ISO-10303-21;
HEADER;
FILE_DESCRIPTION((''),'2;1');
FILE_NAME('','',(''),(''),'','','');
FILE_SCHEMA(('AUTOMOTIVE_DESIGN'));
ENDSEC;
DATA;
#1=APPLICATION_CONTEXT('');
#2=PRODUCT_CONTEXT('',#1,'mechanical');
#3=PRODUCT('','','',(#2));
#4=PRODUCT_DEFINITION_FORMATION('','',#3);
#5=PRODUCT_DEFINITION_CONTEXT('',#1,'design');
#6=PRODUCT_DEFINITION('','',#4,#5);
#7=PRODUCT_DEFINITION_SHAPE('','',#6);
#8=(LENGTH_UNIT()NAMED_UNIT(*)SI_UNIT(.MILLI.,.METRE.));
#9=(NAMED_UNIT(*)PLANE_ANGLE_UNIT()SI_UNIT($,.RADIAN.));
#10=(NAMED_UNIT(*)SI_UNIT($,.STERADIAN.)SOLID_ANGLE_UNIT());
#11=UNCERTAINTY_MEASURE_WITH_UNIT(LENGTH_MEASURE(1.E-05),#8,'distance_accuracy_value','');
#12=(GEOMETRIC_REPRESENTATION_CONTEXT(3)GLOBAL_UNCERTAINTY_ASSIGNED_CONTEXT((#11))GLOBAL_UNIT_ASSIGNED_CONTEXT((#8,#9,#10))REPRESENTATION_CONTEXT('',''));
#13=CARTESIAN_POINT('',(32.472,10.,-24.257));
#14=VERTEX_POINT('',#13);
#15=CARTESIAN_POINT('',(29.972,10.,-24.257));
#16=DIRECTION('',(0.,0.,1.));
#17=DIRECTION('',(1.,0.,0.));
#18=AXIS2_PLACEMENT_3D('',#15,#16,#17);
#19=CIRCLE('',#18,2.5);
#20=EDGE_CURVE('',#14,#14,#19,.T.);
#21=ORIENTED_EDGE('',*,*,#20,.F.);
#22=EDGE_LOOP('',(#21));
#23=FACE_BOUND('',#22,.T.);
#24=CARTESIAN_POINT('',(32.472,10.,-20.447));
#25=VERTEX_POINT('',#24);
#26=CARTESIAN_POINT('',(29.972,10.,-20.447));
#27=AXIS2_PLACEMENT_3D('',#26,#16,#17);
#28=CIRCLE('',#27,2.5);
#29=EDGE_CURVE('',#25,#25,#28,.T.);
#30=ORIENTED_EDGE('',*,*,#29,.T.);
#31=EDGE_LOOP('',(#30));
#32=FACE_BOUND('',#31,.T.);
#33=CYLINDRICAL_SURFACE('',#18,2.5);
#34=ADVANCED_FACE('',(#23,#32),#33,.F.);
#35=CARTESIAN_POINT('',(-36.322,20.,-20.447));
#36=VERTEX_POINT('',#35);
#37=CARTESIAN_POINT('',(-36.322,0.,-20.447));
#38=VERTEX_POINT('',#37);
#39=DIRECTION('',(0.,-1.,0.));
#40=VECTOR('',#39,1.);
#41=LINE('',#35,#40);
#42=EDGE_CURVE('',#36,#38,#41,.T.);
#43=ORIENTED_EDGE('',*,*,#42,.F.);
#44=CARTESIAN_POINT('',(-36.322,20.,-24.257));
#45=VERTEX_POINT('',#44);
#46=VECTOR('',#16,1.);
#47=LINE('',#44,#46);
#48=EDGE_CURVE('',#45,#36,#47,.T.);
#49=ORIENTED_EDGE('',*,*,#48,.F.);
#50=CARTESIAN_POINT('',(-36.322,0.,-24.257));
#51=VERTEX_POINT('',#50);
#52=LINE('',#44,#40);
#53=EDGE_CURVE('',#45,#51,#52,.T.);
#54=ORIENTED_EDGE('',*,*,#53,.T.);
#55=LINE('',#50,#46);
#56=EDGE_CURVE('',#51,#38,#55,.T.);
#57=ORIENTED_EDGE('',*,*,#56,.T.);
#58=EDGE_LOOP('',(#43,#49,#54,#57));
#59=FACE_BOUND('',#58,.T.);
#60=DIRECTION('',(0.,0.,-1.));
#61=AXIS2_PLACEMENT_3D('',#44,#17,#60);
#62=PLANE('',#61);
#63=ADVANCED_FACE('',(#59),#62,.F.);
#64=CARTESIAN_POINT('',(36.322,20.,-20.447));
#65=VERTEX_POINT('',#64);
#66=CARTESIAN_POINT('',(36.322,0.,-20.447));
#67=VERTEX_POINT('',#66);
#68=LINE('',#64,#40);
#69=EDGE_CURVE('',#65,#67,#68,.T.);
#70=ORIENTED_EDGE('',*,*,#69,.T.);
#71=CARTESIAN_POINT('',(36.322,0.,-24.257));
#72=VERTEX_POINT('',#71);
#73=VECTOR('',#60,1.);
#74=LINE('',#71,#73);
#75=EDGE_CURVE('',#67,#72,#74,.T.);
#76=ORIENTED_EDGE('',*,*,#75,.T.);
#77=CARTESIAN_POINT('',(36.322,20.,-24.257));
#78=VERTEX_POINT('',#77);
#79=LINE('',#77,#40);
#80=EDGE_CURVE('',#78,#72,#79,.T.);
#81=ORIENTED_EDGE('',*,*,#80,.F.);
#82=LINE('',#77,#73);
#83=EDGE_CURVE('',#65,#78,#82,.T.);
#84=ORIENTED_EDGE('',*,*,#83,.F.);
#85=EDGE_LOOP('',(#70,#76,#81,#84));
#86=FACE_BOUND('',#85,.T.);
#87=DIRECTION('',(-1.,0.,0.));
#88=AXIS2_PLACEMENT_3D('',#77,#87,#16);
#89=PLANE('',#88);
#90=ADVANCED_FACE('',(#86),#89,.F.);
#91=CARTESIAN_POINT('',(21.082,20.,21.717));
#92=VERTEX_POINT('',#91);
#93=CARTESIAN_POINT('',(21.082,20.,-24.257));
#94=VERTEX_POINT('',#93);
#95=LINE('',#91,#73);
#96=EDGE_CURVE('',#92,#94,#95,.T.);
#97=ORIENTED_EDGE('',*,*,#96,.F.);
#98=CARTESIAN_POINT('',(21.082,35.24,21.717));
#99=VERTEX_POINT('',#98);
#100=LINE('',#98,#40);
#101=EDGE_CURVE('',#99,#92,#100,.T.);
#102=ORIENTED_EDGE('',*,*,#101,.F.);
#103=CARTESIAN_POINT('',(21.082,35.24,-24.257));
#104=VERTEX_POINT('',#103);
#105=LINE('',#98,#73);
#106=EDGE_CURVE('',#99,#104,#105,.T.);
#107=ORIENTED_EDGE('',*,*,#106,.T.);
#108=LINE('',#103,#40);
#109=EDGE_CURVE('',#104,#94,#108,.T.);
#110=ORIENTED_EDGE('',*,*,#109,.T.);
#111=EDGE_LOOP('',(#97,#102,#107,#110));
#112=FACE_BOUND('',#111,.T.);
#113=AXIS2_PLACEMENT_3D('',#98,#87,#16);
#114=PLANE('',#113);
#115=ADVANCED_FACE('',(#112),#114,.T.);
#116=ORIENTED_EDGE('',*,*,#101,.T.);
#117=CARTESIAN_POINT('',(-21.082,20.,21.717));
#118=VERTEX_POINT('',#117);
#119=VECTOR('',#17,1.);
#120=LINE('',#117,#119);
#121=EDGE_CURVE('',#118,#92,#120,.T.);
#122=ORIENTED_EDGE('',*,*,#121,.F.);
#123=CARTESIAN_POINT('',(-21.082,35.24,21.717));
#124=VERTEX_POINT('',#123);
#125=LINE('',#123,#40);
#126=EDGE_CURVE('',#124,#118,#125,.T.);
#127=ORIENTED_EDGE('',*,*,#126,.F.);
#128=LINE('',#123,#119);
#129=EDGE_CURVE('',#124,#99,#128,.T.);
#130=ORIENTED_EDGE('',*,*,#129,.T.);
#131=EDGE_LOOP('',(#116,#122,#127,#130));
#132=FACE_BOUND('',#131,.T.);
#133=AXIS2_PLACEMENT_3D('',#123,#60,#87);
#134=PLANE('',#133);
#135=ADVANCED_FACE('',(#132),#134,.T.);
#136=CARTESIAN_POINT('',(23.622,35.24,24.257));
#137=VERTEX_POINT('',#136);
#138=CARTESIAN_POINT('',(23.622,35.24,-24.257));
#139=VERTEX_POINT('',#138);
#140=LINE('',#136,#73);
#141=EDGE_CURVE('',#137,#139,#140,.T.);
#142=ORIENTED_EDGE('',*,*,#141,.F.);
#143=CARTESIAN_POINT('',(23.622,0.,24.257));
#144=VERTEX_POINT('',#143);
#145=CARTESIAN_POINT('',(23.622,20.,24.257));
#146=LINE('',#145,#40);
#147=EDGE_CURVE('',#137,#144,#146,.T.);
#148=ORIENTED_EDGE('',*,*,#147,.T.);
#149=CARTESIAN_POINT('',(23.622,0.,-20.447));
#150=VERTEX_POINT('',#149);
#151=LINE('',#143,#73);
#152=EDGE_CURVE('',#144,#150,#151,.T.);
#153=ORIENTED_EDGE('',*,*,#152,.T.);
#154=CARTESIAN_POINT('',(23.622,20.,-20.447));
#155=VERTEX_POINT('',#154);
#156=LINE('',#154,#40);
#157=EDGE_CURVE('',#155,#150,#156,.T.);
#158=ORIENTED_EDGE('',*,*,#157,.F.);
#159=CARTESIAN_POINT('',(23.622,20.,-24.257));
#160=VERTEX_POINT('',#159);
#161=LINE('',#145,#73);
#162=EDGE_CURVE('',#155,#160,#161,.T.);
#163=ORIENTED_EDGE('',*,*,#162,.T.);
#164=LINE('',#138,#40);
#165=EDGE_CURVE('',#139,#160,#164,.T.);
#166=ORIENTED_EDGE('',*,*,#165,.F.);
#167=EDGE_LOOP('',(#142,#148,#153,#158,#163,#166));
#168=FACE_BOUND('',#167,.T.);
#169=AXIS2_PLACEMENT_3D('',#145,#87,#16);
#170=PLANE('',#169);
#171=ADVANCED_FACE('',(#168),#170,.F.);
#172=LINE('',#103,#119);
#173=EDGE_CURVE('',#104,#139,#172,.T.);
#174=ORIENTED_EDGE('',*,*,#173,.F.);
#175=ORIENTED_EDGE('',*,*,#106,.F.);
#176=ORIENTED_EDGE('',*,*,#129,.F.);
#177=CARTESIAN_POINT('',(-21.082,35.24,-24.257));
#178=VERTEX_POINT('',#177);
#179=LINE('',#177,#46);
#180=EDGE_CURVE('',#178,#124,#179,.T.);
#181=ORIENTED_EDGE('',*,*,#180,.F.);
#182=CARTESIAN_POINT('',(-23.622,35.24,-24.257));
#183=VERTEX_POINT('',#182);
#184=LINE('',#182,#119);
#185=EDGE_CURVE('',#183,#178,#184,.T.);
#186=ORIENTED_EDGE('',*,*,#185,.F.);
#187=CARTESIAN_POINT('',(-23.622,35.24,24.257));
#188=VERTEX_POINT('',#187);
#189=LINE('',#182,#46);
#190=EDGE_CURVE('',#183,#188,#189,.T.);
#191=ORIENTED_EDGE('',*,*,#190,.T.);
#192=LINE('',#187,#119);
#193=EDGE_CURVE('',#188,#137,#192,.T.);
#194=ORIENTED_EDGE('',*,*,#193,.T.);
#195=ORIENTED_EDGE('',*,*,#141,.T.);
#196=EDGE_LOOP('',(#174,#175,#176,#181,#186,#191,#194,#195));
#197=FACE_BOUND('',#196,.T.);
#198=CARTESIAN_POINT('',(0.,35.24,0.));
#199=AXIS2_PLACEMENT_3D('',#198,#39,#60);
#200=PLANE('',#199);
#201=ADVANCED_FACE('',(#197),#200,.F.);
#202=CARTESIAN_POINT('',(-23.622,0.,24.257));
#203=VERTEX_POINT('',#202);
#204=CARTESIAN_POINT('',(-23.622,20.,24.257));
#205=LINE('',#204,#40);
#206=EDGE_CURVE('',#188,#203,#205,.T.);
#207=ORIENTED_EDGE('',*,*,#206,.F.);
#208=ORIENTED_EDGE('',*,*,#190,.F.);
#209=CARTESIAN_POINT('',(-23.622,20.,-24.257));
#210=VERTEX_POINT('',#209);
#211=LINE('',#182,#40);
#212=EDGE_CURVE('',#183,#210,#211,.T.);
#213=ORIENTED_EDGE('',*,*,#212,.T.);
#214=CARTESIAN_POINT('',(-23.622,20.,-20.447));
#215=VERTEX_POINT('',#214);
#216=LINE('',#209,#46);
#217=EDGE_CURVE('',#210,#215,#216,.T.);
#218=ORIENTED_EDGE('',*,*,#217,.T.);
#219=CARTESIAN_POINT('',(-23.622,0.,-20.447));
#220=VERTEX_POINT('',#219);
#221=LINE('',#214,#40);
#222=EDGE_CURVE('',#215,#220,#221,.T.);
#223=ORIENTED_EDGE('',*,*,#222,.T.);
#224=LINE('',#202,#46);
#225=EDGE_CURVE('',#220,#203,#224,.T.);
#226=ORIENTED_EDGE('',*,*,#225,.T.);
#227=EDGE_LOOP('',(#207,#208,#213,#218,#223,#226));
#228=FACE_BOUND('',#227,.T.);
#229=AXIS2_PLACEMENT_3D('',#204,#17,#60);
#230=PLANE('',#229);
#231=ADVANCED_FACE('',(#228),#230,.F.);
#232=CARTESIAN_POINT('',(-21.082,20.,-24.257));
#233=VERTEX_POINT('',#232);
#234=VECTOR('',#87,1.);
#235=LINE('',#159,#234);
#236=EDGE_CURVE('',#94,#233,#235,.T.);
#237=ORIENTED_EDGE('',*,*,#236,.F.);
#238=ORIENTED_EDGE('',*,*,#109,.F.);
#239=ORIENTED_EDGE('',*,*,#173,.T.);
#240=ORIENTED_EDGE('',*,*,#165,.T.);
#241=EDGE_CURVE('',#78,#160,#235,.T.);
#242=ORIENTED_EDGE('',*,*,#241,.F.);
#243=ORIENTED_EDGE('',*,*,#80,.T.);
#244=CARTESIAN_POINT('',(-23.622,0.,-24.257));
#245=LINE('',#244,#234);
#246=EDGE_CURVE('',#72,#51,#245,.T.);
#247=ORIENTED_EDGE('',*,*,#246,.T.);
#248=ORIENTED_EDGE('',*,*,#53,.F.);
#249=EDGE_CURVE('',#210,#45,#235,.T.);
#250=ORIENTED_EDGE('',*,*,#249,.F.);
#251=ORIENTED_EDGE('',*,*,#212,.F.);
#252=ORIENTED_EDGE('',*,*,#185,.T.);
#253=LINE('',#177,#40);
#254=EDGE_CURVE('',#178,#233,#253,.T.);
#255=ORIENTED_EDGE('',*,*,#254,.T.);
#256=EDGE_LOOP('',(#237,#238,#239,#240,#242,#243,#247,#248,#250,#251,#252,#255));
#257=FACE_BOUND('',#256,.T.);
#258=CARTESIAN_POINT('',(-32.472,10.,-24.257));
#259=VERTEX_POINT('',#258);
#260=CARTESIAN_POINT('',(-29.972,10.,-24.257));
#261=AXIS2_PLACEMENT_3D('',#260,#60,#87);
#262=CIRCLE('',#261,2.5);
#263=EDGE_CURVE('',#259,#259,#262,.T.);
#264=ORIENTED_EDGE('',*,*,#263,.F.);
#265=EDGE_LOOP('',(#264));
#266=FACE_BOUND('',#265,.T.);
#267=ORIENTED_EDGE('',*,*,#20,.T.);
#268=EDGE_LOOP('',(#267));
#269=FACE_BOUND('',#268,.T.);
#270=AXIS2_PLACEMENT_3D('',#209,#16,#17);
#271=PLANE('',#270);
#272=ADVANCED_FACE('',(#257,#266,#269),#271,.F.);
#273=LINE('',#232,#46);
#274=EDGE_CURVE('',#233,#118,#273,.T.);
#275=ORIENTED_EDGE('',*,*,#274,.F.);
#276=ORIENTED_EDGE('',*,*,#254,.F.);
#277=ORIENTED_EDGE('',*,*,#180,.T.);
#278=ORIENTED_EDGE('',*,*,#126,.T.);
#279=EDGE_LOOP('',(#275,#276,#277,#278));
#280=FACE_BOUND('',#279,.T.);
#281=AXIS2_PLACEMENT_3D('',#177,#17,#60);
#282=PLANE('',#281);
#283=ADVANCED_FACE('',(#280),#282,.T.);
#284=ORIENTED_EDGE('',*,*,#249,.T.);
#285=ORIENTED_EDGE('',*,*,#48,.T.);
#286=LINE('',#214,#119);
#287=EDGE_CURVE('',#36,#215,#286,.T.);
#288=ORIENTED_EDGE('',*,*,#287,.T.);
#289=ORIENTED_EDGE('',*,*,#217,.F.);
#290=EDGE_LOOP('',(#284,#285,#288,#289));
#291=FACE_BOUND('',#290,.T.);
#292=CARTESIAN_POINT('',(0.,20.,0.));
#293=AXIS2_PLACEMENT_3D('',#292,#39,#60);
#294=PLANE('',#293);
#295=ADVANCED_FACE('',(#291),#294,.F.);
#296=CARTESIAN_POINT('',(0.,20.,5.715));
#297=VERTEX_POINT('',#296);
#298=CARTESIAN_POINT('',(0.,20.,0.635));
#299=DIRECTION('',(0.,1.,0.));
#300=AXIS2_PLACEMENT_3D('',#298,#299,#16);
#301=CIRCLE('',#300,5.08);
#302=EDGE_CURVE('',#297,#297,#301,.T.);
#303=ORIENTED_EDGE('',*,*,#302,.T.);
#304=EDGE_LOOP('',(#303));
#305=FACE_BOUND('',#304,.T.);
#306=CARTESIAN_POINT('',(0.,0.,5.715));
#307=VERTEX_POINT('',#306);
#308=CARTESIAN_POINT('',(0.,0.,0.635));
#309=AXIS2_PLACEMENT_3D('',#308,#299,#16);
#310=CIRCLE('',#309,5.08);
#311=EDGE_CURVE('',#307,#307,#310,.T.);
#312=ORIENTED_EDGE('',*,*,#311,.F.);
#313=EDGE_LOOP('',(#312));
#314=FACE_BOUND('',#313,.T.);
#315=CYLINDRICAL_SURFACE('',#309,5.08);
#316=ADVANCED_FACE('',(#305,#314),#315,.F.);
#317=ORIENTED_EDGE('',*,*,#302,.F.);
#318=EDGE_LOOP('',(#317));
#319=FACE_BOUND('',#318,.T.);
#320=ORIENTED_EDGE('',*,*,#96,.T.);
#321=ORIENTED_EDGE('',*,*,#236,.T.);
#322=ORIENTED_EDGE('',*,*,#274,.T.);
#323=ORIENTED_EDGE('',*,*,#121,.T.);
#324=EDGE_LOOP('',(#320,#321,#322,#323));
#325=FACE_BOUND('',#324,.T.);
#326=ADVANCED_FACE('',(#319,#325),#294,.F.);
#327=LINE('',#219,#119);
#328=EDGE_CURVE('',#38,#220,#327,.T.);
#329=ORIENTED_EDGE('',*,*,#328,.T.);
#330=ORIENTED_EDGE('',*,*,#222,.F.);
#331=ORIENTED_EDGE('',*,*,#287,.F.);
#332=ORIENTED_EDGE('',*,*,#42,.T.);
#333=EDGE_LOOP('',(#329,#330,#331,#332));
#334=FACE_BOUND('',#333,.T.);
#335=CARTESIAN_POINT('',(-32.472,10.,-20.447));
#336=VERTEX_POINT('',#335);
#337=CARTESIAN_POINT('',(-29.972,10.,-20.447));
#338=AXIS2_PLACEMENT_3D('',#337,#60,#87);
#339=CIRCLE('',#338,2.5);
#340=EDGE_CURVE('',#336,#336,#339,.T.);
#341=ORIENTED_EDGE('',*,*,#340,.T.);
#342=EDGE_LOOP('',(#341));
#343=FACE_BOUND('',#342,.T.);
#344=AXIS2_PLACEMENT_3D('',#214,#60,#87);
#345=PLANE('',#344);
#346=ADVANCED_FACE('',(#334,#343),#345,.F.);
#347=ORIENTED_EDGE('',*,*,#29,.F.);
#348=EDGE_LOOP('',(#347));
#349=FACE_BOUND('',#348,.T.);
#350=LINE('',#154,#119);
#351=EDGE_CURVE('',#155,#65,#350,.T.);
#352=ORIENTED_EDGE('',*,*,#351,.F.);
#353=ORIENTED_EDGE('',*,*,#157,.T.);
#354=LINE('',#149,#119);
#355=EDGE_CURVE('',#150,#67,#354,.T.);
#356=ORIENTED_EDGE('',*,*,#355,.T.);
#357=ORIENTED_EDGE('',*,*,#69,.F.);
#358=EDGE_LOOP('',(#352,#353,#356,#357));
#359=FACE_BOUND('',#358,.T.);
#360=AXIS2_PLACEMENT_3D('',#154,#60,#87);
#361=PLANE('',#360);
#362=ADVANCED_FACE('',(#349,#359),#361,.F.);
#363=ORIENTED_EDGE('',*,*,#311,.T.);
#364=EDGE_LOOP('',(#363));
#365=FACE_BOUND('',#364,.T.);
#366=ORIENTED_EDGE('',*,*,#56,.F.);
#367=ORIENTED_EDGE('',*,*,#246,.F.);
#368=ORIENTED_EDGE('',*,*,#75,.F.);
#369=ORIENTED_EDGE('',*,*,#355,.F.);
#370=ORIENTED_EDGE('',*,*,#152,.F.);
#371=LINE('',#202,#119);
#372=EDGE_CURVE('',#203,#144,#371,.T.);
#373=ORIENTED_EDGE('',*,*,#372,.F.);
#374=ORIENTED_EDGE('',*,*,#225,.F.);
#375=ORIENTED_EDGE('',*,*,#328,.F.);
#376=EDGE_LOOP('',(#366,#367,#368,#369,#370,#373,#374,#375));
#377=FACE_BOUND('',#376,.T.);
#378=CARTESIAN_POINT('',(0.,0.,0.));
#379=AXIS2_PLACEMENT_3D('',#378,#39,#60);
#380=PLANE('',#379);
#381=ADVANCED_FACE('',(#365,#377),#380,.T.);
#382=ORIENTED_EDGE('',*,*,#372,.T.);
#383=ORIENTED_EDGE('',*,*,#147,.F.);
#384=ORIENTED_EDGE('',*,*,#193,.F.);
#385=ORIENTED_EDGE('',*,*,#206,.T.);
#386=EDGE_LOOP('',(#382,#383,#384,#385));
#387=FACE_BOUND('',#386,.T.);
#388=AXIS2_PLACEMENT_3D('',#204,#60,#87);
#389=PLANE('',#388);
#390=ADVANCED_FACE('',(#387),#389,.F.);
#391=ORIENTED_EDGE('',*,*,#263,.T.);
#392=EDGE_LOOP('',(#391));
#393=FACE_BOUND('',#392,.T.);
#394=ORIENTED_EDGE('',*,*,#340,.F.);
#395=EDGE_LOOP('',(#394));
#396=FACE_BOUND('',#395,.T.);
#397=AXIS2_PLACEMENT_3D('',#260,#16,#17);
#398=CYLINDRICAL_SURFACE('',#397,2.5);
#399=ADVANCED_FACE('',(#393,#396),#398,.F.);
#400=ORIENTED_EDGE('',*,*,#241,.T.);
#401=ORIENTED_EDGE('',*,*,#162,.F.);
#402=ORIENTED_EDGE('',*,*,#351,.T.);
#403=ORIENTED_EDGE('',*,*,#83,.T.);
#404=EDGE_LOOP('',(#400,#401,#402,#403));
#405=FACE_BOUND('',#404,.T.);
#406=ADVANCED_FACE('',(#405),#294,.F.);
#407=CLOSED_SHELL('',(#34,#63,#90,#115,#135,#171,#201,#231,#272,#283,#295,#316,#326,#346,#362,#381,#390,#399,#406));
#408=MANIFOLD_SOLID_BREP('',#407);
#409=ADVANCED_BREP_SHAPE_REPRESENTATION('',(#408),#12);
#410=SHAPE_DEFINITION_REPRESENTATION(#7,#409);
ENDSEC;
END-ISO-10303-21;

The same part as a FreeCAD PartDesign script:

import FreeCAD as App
import Part
import Sketcher
Q = App.Units.Quantity


def add_polygon(sketch, points):
    """Adds a closed chain of lines whose ends are joined by coincident constraints."""
    first, n = sketch.GeometryCount, len(points)
    for a, b in zip(points, points[1:] + points[:1]):
        sketch.addGeometry(Part.LineSegment(App.Vector(*a, 0), App.Vector(*b, 0)), False)
    for i in range(n):
        sketch.addConstraint(Sketcher.Constraint("Coincident", first + i, 2, first + (i + 1) % n, 1))

doc = App.newDocument("Part")
body = doc.addObject("PartDesign::Body", "Body")

# Sketch on XZ plane
sketch1 = body.newObject("Sketcher::SketchObject", "Sketch")
sketch1.AttachmentSupport = (doc.getObject("XZ_Plane"), [""])
sketch1.MapMode = "FlatFace"
add_polygon(sketch1, [(-23.6, 24.3), (23.6, 24.3), (23.6, -20.4), (36.3, -20.4), (36.3, -24.3), (-36.3, -24.3), (-36.3, -20.4), (-23.6, -20.4)])  # lines 0-7
sketch1.addConstraint(Sketcher.Constraint("Horizontal", 0))
sketch1.addConstraint(Sketcher.Constraint("Vertical", 1))
sketch1.addConstraint(Sketcher.Constraint("Horizontal", 2))
sketch1.addConstraint(Sketcher.Constraint("Vertical", 3))
sketch1.addConstraint(Sketcher.Constraint("Horizontal", 4))
sketch1.addConstraint(Sketcher.Constraint("Vertical", 5))
sketch1.addConstraint(Sketcher.Constraint("Horizontal", 6))
sketch1.addConstraint(Sketcher.Constraint("Vertical", 7))
sketch1.addConstraint(Sketcher.Constraint("Symmetric", 2, 2, 5, 2, -2))
sketch1.addConstraint(Sketcher.Constraint("Equal", 2, 6))
sketch1.addConstraint(Sketcher.Constraint("DistanceX", 2, 1, 2, 2, Q("0.5 in")))
sketch1.addConstraint(Sketcher.Constraint("DistanceX", 0, 1, 0, 2, Q("1.86 in")))
sketch1.addConstraint(Sketcher.Constraint("DistanceY", 1, 2, 1, 1, Q("1.76 in")))
sketch1.addConstraint(Sketcher.Constraint("DistanceY", 3, 2, 3, 1, Q("0.15 in")))
sketch1.addConstraint(Sketcher.Constraint("DistanceY", -1, 1, 0, 2, Q("0.955 in")))
pad1 = body.newObject("PartDesign::Pad", "Pad")
pad1.Profile = sketch1
pad1.Length = 20
pad1.Reversed = True

# Sketch on XZ plane
sketch2 = body.newObject("Sketcher::SketchObject", "Sketch001")
sketch2.AttachmentSupport = (doc.getObject("XZ_Plane"), [""])
sketch2.MapMode = "FlatFace"
sketch2.AttachmentOffset = App.Placement(App.Vector(0, 0, -20), App.Rotation())
add_polygon(sketch2, [(-21.1, -24.3), (-23.6, -24.3), (-23.6, 24.3), (23.6, 24.3), (23.6, -24.3), (21.1, -24.3), (21.1, 21.7), (-21.1, 21.7)])  # lines 0-7
sketch2.addConstraint(Sketcher.Constraint("Horizontal", 0))
sketch2.addConstraint(Sketcher.Constraint("Vertical", 1))
sketch2.addConstraint(Sketcher.Constraint("Horizontal", 2))
sketch2.addConstraint(Sketcher.Constraint("Vertical", 3))
sketch2.addConstraint(Sketcher.Constraint("Horizontal", 4))
sketch2.addConstraint(Sketcher.Constraint("Vertical", 5))
sketch2.addConstraint(Sketcher.Constraint("Horizontal", 6))
sketch2.addConstraint(Sketcher.Constraint("Vertical", 7))
sketch2.addConstraint(Sketcher.Constraint("Symmetric", 0, 2, 2, 2, -1, 1))
sketch2.addConstraint(Sketcher.Constraint("Symmetric", 4, 2, 7, 2, -2))
sketch2.addConstraint(Sketcher.Constraint("DistanceX", 0, 2, 0, 1, Q("0.1 in")))
sketch2.addConstraint(Sketcher.Constraint("DistanceX", 2, 1, 2, 2, Q("1.86 in")))
sketch2.addConstraint(Sketcher.Constraint("DistanceY", 1, 1, 1, 2, Q("1.91 in")))
sketch2.addConstraint(Sketcher.Constraint("DistanceY", 5, 1, 5, 2, Q("1.81 in")))
pad2 = body.newObject("PartDesign::Pad", "Pad001")
pad2.Profile = sketch2
pad2.Length = Q("0.6 in")
pad2.Reversed = True

# Sketch on XY plane
sketch3 = body.newObject("Sketcher::SketchObject", "Sketch002")
sketch3.AttachmentSupport = (doc.getObject("XY_Plane"), [""])
sketch3.MapMode = "FlatFace"
sketch3.AttachmentOffset = App.Placement(App.Vector(0, 0, -0.805 * 25.4), App.Rotation())
sketch3.addGeometry(Part.Circle(App.Vector(30, 10, 0), App.Vector(0, 0, 1), 2.5), False)
sketch3.addConstraint(Sketcher.Constraint("Diameter", 0, 5.0))
sketch3.addConstraint(Sketcher.Constraint("DistanceX", -1, 1, 0, 3, Q("1.18 in")))
sketch3.addConstraint(Sketcher.Constraint("DistanceY", -1, 1, 0, 3, 10.0))
pocket1 = body.newObject("PartDesign::Pocket", "Pocket")
pocket1.Profile = sketch3
pocket1.Type = "ThroughAll"
doc.recompute()

mirrored = body.newObject("PartDesign::Mirrored", "Mirrored")
mirrored.Originals = [pocket1]
mirrored.MirrorPlane = (doc.getObject("YZ_Plane"), [""])
body.Tip = mirrored

# Sketch on XZ plane
sketch4 = body.newObject("Sketcher::SketchObject", "Sketch003")
sketch4.AttachmentSupport = (doc.getObject("XZ_Plane"), [""])
sketch4.MapMode = "FlatFace"
sketch4.AttachmentOffset = App.Placement(App.Vector(0, 0, -20), App.Rotation())
sketch4.addGeometry(Part.Circle(App.Vector(0, 1, 0), App.Vector(0, 0, 1), 5), False)
sketch4.addConstraint(Sketcher.Constraint("PointOnObject", 0, 3, -2))
sketch4.addConstraint(Sketcher.Constraint("Diameter", 0, Q("0.4 in")))
sketch4.addConstraint(Sketcher.Constraint("DistanceY", -1, 1, 0, 3, Q("0.025 in")))
pocket2 = body.newObject("PartDesign::Pocket", "Pocket001")
pocket2.Profile = sketch4
pocket2.Type = "ThroughAll"
pocket2.Reversed = True

doc.recompute()
